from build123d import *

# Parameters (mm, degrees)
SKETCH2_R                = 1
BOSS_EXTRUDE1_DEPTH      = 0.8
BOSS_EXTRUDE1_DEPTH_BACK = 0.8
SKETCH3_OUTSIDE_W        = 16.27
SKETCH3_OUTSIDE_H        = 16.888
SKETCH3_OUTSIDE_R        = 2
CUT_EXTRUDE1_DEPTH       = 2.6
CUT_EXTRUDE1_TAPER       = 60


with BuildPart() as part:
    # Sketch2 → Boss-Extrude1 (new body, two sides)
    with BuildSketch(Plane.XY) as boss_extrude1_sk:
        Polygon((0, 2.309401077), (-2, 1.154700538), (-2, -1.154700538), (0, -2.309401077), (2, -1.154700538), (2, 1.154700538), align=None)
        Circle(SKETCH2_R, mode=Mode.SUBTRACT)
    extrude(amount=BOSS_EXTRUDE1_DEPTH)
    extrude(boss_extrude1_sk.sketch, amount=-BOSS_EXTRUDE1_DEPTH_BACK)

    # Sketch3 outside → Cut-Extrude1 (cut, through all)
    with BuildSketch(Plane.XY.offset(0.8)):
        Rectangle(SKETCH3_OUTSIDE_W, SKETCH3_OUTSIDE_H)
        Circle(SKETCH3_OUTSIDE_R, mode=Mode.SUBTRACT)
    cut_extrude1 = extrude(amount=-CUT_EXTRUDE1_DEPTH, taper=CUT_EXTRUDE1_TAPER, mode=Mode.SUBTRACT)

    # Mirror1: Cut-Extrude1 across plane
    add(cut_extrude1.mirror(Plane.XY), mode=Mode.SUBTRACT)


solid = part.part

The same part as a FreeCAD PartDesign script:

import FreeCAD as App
import Part
import Sketcher
Q = App.Units.Quantity

doc = App.newDocument("Part")
params = doc.addObject("Spreadsheet::Sheet", "Params")
for row, (alias, value) in enumerate([
    ("sketch1_diameter", "2 mm"),
    ("pad1_length", "0.8 mm"),
    ("pad1_length2", "0.8 mm"),
    ("sketch2_diameter", "4 mm"),
    ("sketch2_width", "16.27 mm"),
    ("pocket1_length", "2.6 mm"),
    ("pocket1_taper", "60 deg"),
], start=1):
    params.set(f"A{row}", alias)
    params.set(f"B{row}", "=" + value)
    params.setAlias(f"B{row}", alias)

body = doc.addObject("PartDesign::Body", "Body")

# Sketch on XY plane
sketch1 = body.newObject("Sketcher::SketchObject", "Sketch")
sketch1.AttachmentSupport = (doc.getObject("XY_Plane"), [""])
sketch1.MapMode = "FlatFace"
sketch1.addGeometry(Part.LineSegment(App.Vector(0, 2.3, 0), App.Vector(-2, 1.2, 0)), False)
sketch1.addGeometry(Part.LineSegment(App.Vector(-2, 1.2, 0), App.Vector(-2, -1.2, 0)), False)
sketch1.addGeometry(Part.LineSegment(App.Vector(-2, -1.2, 0), App.Vector(0, -2.3, 0)), False)
sketch1.addGeometry(Part.LineSegment(App.Vector(0, -2.3, 0), App.Vector(2, -1.2, 0)), False)
sketch1.addGeometry(Part.LineSegment(App.Vector(2, -1.2, 0), App.Vector(2, 1.2, 0)), False)
sketch1.addGeometry(Part.LineSegment(App.Vector(2, 1.2, 0), App.Vector(0, 2.3, 0)), False)
sketch1.addGeometry(Part.Circle(App.Vector(0, 0, 0), App.Vector(0, 0, 1), 1), False)
sketch1.addConstraint(Sketcher.Constraint("Coincident", 0, 2, 1, 1))
sketch1.addConstraint(Sketcher.Constraint("Coincident", 1, 2, 2, 1))
sketch1.addConstraint(Sketcher.Constraint("Coincident", 2, 2, 3, 1))
sketch1.addConstraint(Sketcher.Constraint("Coincident", 3, 2, 4, 1))
sketch1.addConstraint(Sketcher.Constraint("Coincident", 4, 2, 5, 1))
sketch1.addConstraint(Sketcher.Constraint("Coincident", 5, 2, 0, 1))
sketch1.addConstraint(Sketcher.Constraint("Vertical", 1))
sketch1.addConstraint(Sketcher.Constraint("Vertical", 4))
sketch1.addConstraint(Sketcher.Constraint("Coincident", 6, 3, -1, 1))
sketch1.addConstraint(Sketcher.Constraint("Symmetric", 0, 2, 3, 2, -1, 1))
sketch1.addConstraint(Sketcher.Constraint("Symmetric", 2, 2, 5, 2, -1, 1))
sketch1.addConstraint(Sketcher.Constraint("PointOnObject", 2, 2, -2))
sketch1.addConstraint(Sketcher.Constraint("Parallel", 2, 5))
sketch1.addConstraint(Sketcher.Constraint("Horizontal", 1, 2, 3, 2))
sketch1.addConstraint(Sketcher.Constraint("Diameter", 6, Q("2 mm")))
sketch1.addConstraint(Sketcher.Constraint("Angle", 0, Q("-150 deg")))
sketch1.addConstraint(Sketcher.Constraint("DistanceX", 0, 2, -1, 1, Q("2 mm")))
sketch1.addConstraint(Sketcher.Constraint("DistanceY", 1, 2, 1, 1, Q("2.309401 mm")))
sketch1.setExpression("Constraints[14]", "Params.sketch1_diameter")
pad1 = body.newObject("PartDesign::Pad", "Pad")
pad1.Profile = sketch1
pad1.Type = "TwoLengths"
pad1.setExpression("Length", "Params.pad1_length")
pad1.setExpression("Length2", "Params.pad1_length2")

# Sketch on XY plane
sketch2 = body.newObject("Sketcher::SketchObject", "Sketch001")
sketch2.AttachmentSupport = (doc.getObject("XY_Plane"), [""])
sketch2.MapMode = "FlatFace"
sketch2.AttachmentOffset = App.Placement(App.Vector(0, 0, 0.8), App.Rotation())
sketch2.addGeometry(Part.LineSegment(App.Vector(-8.1, 8.4, 0), App.Vector(-8.1, -8.4, 0)), False)
sketch2.addGeometry(Part.LineSegment(App.Vector(-8.1, -8.4, 0), App.Vector(8.1, -8.4, 0)), False)
sketch2.addGeometry(Part.LineSegment(App.Vector(8.1, -8.4, 0), App.Vector(8.1, 8.4, 0)), False)
sketch2.addGeometry(Part.LineSegment(App.Vector(8.1, 8.4, 0), App.Vector(-8.1, 8.4, 0)), False)
sketch2.addGeometry(Part.Circle(App.Vector(0, 0, 0), App.Vector(0, 0, 1), 2), False)
sketch2.addConstraint(Sketcher.Constraint("Coincident", 0, 2, 1, 1))
sketch2.addConstraint(Sketcher.Constraint("Coincident", 1, 2, 2, 1))
sketch2.addConstraint(Sketcher.Constraint("Coincident", 2, 2, 3, 1))
sketch2.addConstraint(Sketcher.Constraint("Coincident", 3, 2, 0, 1))
sketch2.addConstraint(Sketcher.Constraint("Vertical", 0))
sketch2.addConstraint(Sketcher.Constraint("Horizontal", 1))
sketch2.addConstraint(Sketcher.Constraint("Vertical", 2))
sketch2.addConstraint(Sketcher.Constraint("Horizontal", 3))
sketch2.addConstraint(Sketcher.Constraint("Coincident", 4, 3, -1, 1))
sketch2.addConstraint(Sketcher.Constraint("Symmetric", 0, 2, 2, 2, -1, 1))
sketch2.addConstraint(Sketcher.Constraint("Diameter", 4, Q("4 mm")))
sketch2.addConstraint(Sketcher.Constraint("DistanceX", 1, 1, 1, 2, Q("16.27 mm")))
sketch2.addConstraint(Sketcher.Constraint("DistanceY", 0, 2, 0, 1, Q("16.888 mm")))
sketch2.setExpression("Constraints[10]", "Params.sketch2_diameter")
sketch2.setExpression("Constraints[11]", "Params.sketch2_width")
pocket1 = body.newObject("PartDesign::Pocket", "Pocket")
pocket1.Profile = sketch2
pocket1.setExpression("Length", "Params.pocket1_length")
pocket1.setExpression("TaperAngle", "Params.pocket1_taper")
doc.recompute()

mirrored = body.newObject("PartDesign::Mirrored", "Mirrored")
mirrored.Originals = [pocket1]
mirrored.MirrorPlane = (doc.getObject("XY_Plane"), [""])
body.Tip = mirrored

doc.recompute()
